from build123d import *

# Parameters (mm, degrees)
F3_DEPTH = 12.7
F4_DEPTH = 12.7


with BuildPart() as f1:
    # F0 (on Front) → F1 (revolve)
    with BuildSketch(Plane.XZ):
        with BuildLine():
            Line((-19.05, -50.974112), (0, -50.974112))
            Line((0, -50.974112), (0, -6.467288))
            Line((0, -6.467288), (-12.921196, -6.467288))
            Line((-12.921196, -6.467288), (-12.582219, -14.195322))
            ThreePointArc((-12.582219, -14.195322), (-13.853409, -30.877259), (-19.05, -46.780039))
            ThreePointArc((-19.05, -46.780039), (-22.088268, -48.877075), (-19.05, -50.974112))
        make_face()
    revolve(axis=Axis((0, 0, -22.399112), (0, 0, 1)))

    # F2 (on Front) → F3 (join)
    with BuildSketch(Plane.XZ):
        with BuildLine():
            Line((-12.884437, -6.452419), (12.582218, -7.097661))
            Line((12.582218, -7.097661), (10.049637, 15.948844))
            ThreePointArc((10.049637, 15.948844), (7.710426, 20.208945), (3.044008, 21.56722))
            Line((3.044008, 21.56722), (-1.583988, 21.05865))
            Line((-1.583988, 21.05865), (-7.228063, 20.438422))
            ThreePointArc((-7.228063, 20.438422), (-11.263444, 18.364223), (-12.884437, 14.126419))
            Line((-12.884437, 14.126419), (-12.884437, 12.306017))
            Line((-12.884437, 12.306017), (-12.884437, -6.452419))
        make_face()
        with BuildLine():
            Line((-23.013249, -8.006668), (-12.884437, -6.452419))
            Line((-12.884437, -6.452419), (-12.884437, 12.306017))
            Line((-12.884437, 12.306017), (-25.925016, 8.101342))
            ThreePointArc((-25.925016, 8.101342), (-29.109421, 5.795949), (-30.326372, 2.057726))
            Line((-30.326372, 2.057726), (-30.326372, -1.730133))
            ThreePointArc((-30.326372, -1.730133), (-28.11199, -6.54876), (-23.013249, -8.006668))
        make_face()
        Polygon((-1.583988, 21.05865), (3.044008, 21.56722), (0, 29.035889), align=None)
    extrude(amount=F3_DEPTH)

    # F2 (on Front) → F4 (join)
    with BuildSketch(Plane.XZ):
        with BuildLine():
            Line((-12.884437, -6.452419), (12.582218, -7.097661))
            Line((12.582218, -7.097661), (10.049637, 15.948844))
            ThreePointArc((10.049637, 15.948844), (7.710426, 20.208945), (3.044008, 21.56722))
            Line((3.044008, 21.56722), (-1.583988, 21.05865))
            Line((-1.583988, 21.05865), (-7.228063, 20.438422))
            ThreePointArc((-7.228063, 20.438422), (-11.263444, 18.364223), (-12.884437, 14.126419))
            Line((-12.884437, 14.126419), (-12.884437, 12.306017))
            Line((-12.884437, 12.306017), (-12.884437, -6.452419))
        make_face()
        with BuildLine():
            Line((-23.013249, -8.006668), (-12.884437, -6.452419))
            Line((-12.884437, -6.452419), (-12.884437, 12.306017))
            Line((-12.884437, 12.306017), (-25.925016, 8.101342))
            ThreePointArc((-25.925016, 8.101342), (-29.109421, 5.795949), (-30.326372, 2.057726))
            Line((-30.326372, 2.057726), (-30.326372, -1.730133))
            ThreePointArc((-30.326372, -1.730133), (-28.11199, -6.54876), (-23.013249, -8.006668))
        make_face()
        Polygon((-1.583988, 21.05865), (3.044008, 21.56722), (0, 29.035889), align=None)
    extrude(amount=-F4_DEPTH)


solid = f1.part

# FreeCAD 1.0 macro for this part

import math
import FreeCAD as App
import Part
import Sketcher
from FreeCAD import Vector
Q = App.Units.Quantity

doc = App.newDocument("Part")
body = doc.addObject("PartDesign::Body", "Body")

sketch1 = body.newObject("Sketcher::SketchObject", "Sketch")
sketch1.AttachmentSupport = (doc.getObject("XZ_Plane"), [""])
sketch1.MapMode = "FlatFace"
sketch1.addGeometry(Part.LineSegment(Vector(-19.1, -51, 0), Vector(0, -51, 0)), False)
sketch1.addGeometry(Part.LineSegment(Vector(0, -51, 0), Vector(0, -6.5, 0)), False)
sketch1.addGeometry(Part.LineSegment(Vector(0, -6.5, 0), Vector(-12.9, -6.5, 0)), False)
sketch1.addGeometry(Part.LineSegment(Vector(-12.9, -6.5, 0), Vector(-12.6, -14.2, 0)), False)
sketch1.addGeometry(Part.ArcOfCircle(Part.Circle(Vector(-82.5, -17.3, 0), Vector(0, 0, 1), 69.9), math.radians(-25), math.radians(3)), False)
sketch1.addGeometry(Part.ArcOfCircle(Part.Circle(Vector(-19.8, -48.9, 0), Vector(0, 0, 1), 2.2), math.radians(69), math.radians(291)), False)
sketch1.addConstraint(Sketcher.Constraint("Coincident", 0, 2, 1, 1))
sketch1.addConstraint(Sketcher.Constraint("Coincident", 1, 2, 2, 1))
sketch1.addConstraint(Sketcher.Constraint("Coincident", 2, 2, 3, 1))
sketch1.addConstraint(Sketcher.Constraint("Tangent", 3, 2, 4, 2))
sketch1.addConstraint(Sketcher.Constraint("Coincident", 4, 1, 5, 1))
sketch1.addConstraint(Sketcher.Constraint("Coincident", 5, 2, 0, 1))
sketch1.addConstraint(Sketcher.Constraint("Horizontal", 0))
sketch1.addConstraint(Sketcher.Constraint("Vertical", 1))
sketch1.addConstraint(Sketcher.Constraint("Horizontal", 2))
sketch1.addConstraint(Sketcher.Constraint("PointOnObject", 0, 2, -2))
sketch1.addConstraint(Sketcher.Constraint("Vertical", 4, 1, 5, 2))
sketch1.addConstraint(Sketcher.Constraint("DistanceX", 0, 1, 0, 2, Q("0.75 in")))
sketch1.addConstraint(Sketcher.Constraint("Radius", 5, 2.24283))
sketch1.addConstraint(Sketcher.Constraint("Radius", 4, 69.941086))
sketch1.addConstraint(Sketcher.Constraint("DistanceX", 4, 3, 3, 2, 69.8739))
sketch1.addConstraint(Sketcher.Constraint("DistanceX", 2, 2, 2, 1, 12.921196))
sketch1.addConstraint(Sketcher.Constraint("DistanceY", 1, 1, 1, 2, 44.506824))
sketch1.addConstraint(Sketcher.Constraint("DistanceX", 4, 3, -1, 1, 82.456119))
sketch1.addConstraint(Sketcher.Constraint("DistanceY", 0, 2, -1, 1, 50.974112))
revolution = body.newObject("PartDesign::Revolution", "Revolution")
revolution.Profile = sketch1
revolution.ReferenceAxis = (sketch1, ["V_Axis"])
revolution.Angle = 360

sketch2 = body.newObject("Sketcher::SketchObject", "Sketch001")
sketch2.AttachmentSupport = (doc.getObject("XZ_Plane"), [""])
sketch2.MapMode = "FlatFace"
sketch2.addGeometry(Part.LineSegment(Vector(-12.884437, -6.452419, 0), Vector(12.582218, -7.097661, 0)), False)
sketch2.addGeometry(Part.LineSegment(Vector(12.582218, -7.097661, 0), Vector(10.049637, 15.948844, 0)), False)
sketch2.addGeometry(Part.ArcOfCircle(Part.Circle(Vector(3.737634, 15.255216, 0), Vector(0, 0, 1), 6.35), math.radians(6.271084), math.radians(96.271068)), False)
sketch2.addGeometry(Part.LineSegment(Vector(3.044008, 21.56722, 0), Vector(0, 29.035889, 0)), False)
sketch2.addGeometry(Part.LineSegment(Vector(0, 29.035889, 0), Vector(-1.583988, 21.05865, 0)), False)
sketch2.addGeometry(Part.LineSegment(Vector(-1.583988, 21.05865, 0), Vector(-7.228063, 20.438422, 0)), False)
sketch2.addGeometry(Part.ArcOfCircle(Part.Circle(Vector(-6.534435, 14.126417, 0), Vector(0, 0, 1), 6.350002), math.radians(96.271088), math.radians(179.999982)), False)
sketch2.addGeometry(Part.LineSegment(Vector(-12.884437, 14.126419, 0), Vector(-12.884437, 12.306017, 0)), False)
sketch2.addGeometry(Part.LineSegment(Vector(-12.884437, 12.306017, 0), Vector(-25.925016, 8.101342, 0)), False)
sketch2.addGeometry(Part.ArcOfCircle(Part.Circle(Vector(-23.976371, 2.057726, 0), Vector(0, 0, 1), 6.350001), math.radians(107.870891), math.radians(180.000002)), False)
sketch2.addGeometry(Part.LineSegment(Vector(-30.326372, 2.057726, 0), Vector(-30.326372, -1.730133, 0)), False)
sketch2.addGeometry(Part.ArcOfCircle(Part.Circle(Vector(-23.976373, -1.730134, 0), Vector(0, 0, 1), 6.349999), math.radians(179.999995), math.radians(278.723893)), False)
sketch2.addGeometry(Part.LineSegment(Vector(-23.013249, -8.006668, 0), Vector(-12.884437, -6.452419, 0)), False)
sketch2.addConstraint(Sketcher.Constraint("Coincident", 0, 2, 1, 1))
sketch2.addConstraint(Sketcher.Constraint("Coincident", 1, 2, 2, 1))
sketch2.addConstraint(Sketcher.Constraint("Coincident", 2, 2, 3, 1))
sketch2.addConstraint(Sketcher.Constraint("Coincident", 3, 2, 4, 1))
sketch2.addConstraint(Sketcher.Constraint("Coincident", 4, 2, 5, 1))
sketch2.addConstraint(Sketcher.Constraint("Coincident", 5, 2, 6, 1))
sketch2.addConstraint(Sketcher.Constraint("Coincident", 6, 2, 7, 1))
sketch2.addConstraint(Sketcher.Constraint("Coincident", 7, 2, 8, 1))
sketch2.addConstraint(Sketcher.Constraint("Coincident", 8, 2, 9, 1))
sketch2.addConstraint(Sketcher.Constraint("Coincident", 9, 2, 10, 1))
sketch2.addConstraint(Sketcher.Constraint("Coincident", 10, 2, 11, 1))
sketch2.addConstraint(Sketcher.Constraint("Coincident", 11, 2, 12, 1))
sketch2.addConstraint(Sketcher.Constraint("Coincident", 12, 2, 0, 1))
sketch2.addConstraint(Sketcher.Constraint("Vertical", 7))
sketch2.addConstraint(Sketcher.Constraint("Vertical", 10))
sketch2.addConstraint(Sketcher.Constraint("PointOnObject", 3, 2, -2))
sketch2.addConstraint(Sketcher.Constraint("Radius", 2, Q("0.25 in")))
sketch2.addConstraint(Sketcher.Constraint("Radius", 6, Q("0.2500001 in")))
sketch2.addConstraint(Sketcher.Constraint("Radius", 9, Q("0.25 in")))
sketch2.addConstraint(Sketcher.Constraint("Radius", 11, Q("0.25 in")))
sketch2.addConstraint(Sketcher.Constraint("DistanceY", 7, 2, 7, 1, 1.820402))
sketch2.addConstraint(Sketcher.Constraint("DistanceY", 10, 2, 10, 1, 3.787859))
sketch2.addConstraint(Sketcher.Constraint("DistanceY", 6, 3, 2, 3, 1.128799))
sketch2.addConstraint(Sketcher.Constraint("DistanceY", 7, 2, 6, 3, 1.8204))
sketch2.addConstraint(Sketcher.Constraint("Distance", 1, 23.18524))
sketch2.addConstraint(Sketcher.Constraint("Distance", 4, 8.13298))
sketch2.addConstraint(Sketcher.Constraint("Distance", 5, 5.678051))
sketch2.addConstraint(Sketcher.Constraint("Distance", 8, 13.701678))
sketch2.addConstraint(Sketcher.Constraint("DistanceX", 9, 3, -1, 1, 23.976371))
sketch2.addConstraint(Sketcher.Constraint("DistanceY", 0, 2, -1, 1, 7.097661))
sketch2.addConstraint(Sketcher.Constraint("DistanceX", -1, 1, 2, 2, 3.044008))
sketch2.addConstraint(Sketcher.Constraint("DistanceY", -1, 1, 2, 2, 21.56722))
sketch2.addConstraint(Sketcher.Constraint("DistanceY", -1, 1, 3, 2, 29.035889))
sketch2.addConstraint(Sketcher.Constraint("DistanceY", -1, 1, 4, 2, 21.05865))
sketch2.addConstraint(Sketcher.Constraint("DistanceY", -1, 1, 5, 2, 20.438422))
sketch2.addConstraint(Sketcher.Constraint("DistanceY", -1, 1, 6, 2, 14.126419))
sketch2.addConstraint(Sketcher.Constraint("DistanceX", 11, 2, -1, 1, 23.013249))
sketch2.addConstraint(Sketcher.Constraint("DistanceY", 12, 2, -1, 1, 6.452419))
sketch2.addConstraint(Sketcher.Constraint("DistanceY", 9, 3, 6, 3, 12.068691))
sketch2.addConstraint(Sketcher.Constraint("DistanceY", 11, 3, 9, 3, 3.78786))
sketch2.addConstraint(Sketcher.Constraint("DistanceX", 11, 3, 0, 2, 36.558591))
sketch2.addConstraint(Sketcher.Constraint("DistanceY", 11, 3, 9, 2, 3.78786))
sketch2.addConstraint(Sketcher.Constraint("Distance", 0, 25.474828))
pad1 = body.newObject("PartDesign::Pad", "Pad")
pad1.Profile = sketch2
pad1.Length = Q("0.5 in")

sketch3 = body.newObject("Sketcher::SketchObject", "Sketch002")
sketch3.AttachmentSupport = (doc.getObject("XZ_Plane"), [""])
sketch3.MapMode = "FlatFace"
sketch3.addGeometry(Part.LineSegment(Vector(-12.884437, -6.452419, 0), Vector(12.582218, -7.097661, 0)), False)
sketch3.addGeometry(Part.LineSegment(Vector(12.582218, -7.097661, 0), Vector(10.049637, 15.948844, 0)), False)
sketch3.addGeometry(Part.ArcOfCircle(Part.Circle(Vector(3.737634, 15.255216, 0), Vector(0, 0, 1), 6.35), math.radians(6.271084), math.radians(96.271068)), False)
sketch3.addGeometry(Part.LineSegment(Vector(3.044008, 21.56722, 0), Vector(0, 29.035889, 0)), False)
sketch3.addGeometry(Part.LineSegment(Vector(0, 29.035889, 0), Vector(-1.583988, 21.05865, 0)), False)
sketch3.addGeometry(Part.LineSegment(Vector(-1.583988, 21.05865, 0), Vector(-7.228063, 20.438422, 0)), False)
sketch3.addGeometry(Part.ArcOfCircle(Part.Circle(Vector(-6.534435, 14.126417, 0), Vector(0, 0, 1), 6.350002), math.radians(96.271088), math.radians(179.999982)), False)
sketch3.addGeometry(Part.LineSegment(Vector(-12.884437, 14.126419, 0), Vector(-12.884437, 12.306017, 0)), False)
sketch3.addGeometry(Part.LineSegment(Vector(-12.884437, 12.306017, 0), Vector(-25.925016, 8.101342, 0)), False)
sketch3.addGeometry(Part.ArcOfCircle(Part.Circle(Vector(-23.976371, 2.057726, 0), Vector(0, 0, 1), 6.350001), math.radians(107.870891), math.radians(180.000002)), False)
sketch3.addGeometry(Part.LineSegment(Vector(-30.326372, 2.057726, 0), Vector(-30.326372, -1.730133, 0)), False)
sketch3.addGeometry(Part.ArcOfCircle(Part.Circle(Vector(-23.976373, -1.730134, 0), Vector(0, 0, 1), 6.349999), math.radians(179.999995), math.radians(278.723893)), False)
sketch3.addGeometry(Part.LineSegment(Vector(-23.013249, -8.006668, 0), Vector(-12.884437, -6.452419, 0)), False)
sketch3.addConstraint(Sketcher.Constraint("Coincident", 0, 2, 1, 1))
sketch3.addConstraint(Sketcher.Constraint("Coincident", 1, 2, 2, 1))
sketch3.addConstraint(Sketcher.Constraint("Coincident", 2, 2, 3, 1))
sketch3.addConstraint(Sketcher.Constraint("Coincident", 3, 2, 4, 1))
sketch3.addConstraint(Sketcher.Constraint("Coincident", 4, 2, 5, 1))
sketch3.addConstraint(Sketcher.Constraint("Coincident", 5, 2, 6, 1))
sketch3.addConstraint(Sketcher.Constraint("Coincident", 6, 2, 7, 1))
sketch3.addConstraint(Sketcher.Constraint("Coincident", 7, 2, 8, 1))
sketch3.addConstraint(Sketcher.Constraint("Coincident", 8, 2, 9, 1))
sketch3.addConstraint(Sketcher.Constraint("Coincident", 9, 2, 10, 1))
sketch3.addConstraint(Sketcher.Constraint("Coincident", 10, 2, 11, 1))
sketch3.addConstraint(Sketcher.Constraint("Coincident", 11, 2, 12, 1))
sketch3.addConstraint(Sketcher.Constraint("Coincident", 12, 2, 0, 1))
sketch3.addConstraint(Sketcher.Constraint("Vertical", 7))
sketch3.addConstraint(Sketcher.Constraint("Vertical", 10))
sketch3.addConstraint(Sketcher.Constraint("PointOnObject", 3, 2, -2))
sketch3.addConstraint(Sketcher.Constraint("Radius", 2, Q("0.25 in")))
sketch3.addConstraint(Sketcher.Constraint("Radius", 6, Q("0.2500001 in")))
sketch3.addConstraint(Sketcher.Constraint("Radius", 9, Q("0.25 in")))
sketch3.addConstraint(Sketcher.Constraint("Radius", 11, Q("0.25 in")))
sketch3.addConstraint(Sketcher.Constraint("DistanceY", 7, 2, 7, 1, 1.820402))
sketch3.addConstraint(Sketcher.Constraint("DistanceY", 10, 2, 10, 1, 3.787859))
sketch3.addConstraint(Sketcher.Constraint("DistanceY", 6, 3, 2, 3, 1.128799))
sketch3.addConstraint(Sketcher.Constraint("DistanceY", 7, 2, 6, 3, 1.8204))
sketch3.addConstraint(Sketcher.Constraint("Distance", 1, 23.18524))
sketch3.addConstraint(Sketcher.Constraint("Distance", 4, 8.13298))
sketch3.addConstraint(Sketcher.Constraint("Distance", 5, 5.678051))
sketch3.addConstraint(Sketcher.Constraint("Distance", 8, 13.701678))
sketch3.addConstraint(Sketcher.Constraint("DistanceX", 9, 3, -1, 1, 23.976371))
sketch3.addConstraint(Sketcher.Constraint("DistanceY", 0, 2, -1, 1, 7.097661))
sketch3.addConstraint(Sketcher.Constraint("DistanceX", -1, 1, 2, 2, 3.044008))
sketch3.addConstraint(Sketcher.Constraint("DistanceY", -1, 1, 2, 2, 21.56722))
sketch3.addConstraint(Sketcher.Constraint("DistanceY", -1, 1, 3, 2, 29.035889))
sketch3.addConstraint(Sketcher.Constraint("DistanceY", -1, 1, 4, 2, 21.05865))
sketch3.addConstraint(Sketcher.Constraint("DistanceY", -1, 1, 5, 2, 20.438422))
sketch3.addConstraint(Sketcher.Constraint("DistanceY", -1, 1, 6, 2, 14.126419))
sketch3.addConstraint(Sketcher.Constraint("DistanceX", 11, 2, -1, 1, 23.013249))
sketch3.addConstraint(Sketcher.Constraint("DistanceY", 12, 2, -1, 1, 6.452419))
sketch3.addConstraint(Sketcher.Constraint("DistanceY", 9, 3, 6, 3, 12.068691))
sketch3.addConstraint(Sketcher.Constraint("DistanceY", 11, 3, 9, 3, 3.78786))
sketch3.addConstraint(Sketcher.Constraint("DistanceX", 11, 3, 0, 2, 36.558591))
sketch3.addConstraint(Sketcher.Constraint("DistanceY", 11, 3, 9, 2, 3.78786))
sketch3.addConstraint(Sketcher.Constraint("Distance", 0, 25.474828))
pad2 = body.newObject("PartDesign::Pad", "Pad001")
pad2.Profile = sketch3
pad2.Length = Q("0.5 in")
pad2.Reversed = True

doc.recompute()
